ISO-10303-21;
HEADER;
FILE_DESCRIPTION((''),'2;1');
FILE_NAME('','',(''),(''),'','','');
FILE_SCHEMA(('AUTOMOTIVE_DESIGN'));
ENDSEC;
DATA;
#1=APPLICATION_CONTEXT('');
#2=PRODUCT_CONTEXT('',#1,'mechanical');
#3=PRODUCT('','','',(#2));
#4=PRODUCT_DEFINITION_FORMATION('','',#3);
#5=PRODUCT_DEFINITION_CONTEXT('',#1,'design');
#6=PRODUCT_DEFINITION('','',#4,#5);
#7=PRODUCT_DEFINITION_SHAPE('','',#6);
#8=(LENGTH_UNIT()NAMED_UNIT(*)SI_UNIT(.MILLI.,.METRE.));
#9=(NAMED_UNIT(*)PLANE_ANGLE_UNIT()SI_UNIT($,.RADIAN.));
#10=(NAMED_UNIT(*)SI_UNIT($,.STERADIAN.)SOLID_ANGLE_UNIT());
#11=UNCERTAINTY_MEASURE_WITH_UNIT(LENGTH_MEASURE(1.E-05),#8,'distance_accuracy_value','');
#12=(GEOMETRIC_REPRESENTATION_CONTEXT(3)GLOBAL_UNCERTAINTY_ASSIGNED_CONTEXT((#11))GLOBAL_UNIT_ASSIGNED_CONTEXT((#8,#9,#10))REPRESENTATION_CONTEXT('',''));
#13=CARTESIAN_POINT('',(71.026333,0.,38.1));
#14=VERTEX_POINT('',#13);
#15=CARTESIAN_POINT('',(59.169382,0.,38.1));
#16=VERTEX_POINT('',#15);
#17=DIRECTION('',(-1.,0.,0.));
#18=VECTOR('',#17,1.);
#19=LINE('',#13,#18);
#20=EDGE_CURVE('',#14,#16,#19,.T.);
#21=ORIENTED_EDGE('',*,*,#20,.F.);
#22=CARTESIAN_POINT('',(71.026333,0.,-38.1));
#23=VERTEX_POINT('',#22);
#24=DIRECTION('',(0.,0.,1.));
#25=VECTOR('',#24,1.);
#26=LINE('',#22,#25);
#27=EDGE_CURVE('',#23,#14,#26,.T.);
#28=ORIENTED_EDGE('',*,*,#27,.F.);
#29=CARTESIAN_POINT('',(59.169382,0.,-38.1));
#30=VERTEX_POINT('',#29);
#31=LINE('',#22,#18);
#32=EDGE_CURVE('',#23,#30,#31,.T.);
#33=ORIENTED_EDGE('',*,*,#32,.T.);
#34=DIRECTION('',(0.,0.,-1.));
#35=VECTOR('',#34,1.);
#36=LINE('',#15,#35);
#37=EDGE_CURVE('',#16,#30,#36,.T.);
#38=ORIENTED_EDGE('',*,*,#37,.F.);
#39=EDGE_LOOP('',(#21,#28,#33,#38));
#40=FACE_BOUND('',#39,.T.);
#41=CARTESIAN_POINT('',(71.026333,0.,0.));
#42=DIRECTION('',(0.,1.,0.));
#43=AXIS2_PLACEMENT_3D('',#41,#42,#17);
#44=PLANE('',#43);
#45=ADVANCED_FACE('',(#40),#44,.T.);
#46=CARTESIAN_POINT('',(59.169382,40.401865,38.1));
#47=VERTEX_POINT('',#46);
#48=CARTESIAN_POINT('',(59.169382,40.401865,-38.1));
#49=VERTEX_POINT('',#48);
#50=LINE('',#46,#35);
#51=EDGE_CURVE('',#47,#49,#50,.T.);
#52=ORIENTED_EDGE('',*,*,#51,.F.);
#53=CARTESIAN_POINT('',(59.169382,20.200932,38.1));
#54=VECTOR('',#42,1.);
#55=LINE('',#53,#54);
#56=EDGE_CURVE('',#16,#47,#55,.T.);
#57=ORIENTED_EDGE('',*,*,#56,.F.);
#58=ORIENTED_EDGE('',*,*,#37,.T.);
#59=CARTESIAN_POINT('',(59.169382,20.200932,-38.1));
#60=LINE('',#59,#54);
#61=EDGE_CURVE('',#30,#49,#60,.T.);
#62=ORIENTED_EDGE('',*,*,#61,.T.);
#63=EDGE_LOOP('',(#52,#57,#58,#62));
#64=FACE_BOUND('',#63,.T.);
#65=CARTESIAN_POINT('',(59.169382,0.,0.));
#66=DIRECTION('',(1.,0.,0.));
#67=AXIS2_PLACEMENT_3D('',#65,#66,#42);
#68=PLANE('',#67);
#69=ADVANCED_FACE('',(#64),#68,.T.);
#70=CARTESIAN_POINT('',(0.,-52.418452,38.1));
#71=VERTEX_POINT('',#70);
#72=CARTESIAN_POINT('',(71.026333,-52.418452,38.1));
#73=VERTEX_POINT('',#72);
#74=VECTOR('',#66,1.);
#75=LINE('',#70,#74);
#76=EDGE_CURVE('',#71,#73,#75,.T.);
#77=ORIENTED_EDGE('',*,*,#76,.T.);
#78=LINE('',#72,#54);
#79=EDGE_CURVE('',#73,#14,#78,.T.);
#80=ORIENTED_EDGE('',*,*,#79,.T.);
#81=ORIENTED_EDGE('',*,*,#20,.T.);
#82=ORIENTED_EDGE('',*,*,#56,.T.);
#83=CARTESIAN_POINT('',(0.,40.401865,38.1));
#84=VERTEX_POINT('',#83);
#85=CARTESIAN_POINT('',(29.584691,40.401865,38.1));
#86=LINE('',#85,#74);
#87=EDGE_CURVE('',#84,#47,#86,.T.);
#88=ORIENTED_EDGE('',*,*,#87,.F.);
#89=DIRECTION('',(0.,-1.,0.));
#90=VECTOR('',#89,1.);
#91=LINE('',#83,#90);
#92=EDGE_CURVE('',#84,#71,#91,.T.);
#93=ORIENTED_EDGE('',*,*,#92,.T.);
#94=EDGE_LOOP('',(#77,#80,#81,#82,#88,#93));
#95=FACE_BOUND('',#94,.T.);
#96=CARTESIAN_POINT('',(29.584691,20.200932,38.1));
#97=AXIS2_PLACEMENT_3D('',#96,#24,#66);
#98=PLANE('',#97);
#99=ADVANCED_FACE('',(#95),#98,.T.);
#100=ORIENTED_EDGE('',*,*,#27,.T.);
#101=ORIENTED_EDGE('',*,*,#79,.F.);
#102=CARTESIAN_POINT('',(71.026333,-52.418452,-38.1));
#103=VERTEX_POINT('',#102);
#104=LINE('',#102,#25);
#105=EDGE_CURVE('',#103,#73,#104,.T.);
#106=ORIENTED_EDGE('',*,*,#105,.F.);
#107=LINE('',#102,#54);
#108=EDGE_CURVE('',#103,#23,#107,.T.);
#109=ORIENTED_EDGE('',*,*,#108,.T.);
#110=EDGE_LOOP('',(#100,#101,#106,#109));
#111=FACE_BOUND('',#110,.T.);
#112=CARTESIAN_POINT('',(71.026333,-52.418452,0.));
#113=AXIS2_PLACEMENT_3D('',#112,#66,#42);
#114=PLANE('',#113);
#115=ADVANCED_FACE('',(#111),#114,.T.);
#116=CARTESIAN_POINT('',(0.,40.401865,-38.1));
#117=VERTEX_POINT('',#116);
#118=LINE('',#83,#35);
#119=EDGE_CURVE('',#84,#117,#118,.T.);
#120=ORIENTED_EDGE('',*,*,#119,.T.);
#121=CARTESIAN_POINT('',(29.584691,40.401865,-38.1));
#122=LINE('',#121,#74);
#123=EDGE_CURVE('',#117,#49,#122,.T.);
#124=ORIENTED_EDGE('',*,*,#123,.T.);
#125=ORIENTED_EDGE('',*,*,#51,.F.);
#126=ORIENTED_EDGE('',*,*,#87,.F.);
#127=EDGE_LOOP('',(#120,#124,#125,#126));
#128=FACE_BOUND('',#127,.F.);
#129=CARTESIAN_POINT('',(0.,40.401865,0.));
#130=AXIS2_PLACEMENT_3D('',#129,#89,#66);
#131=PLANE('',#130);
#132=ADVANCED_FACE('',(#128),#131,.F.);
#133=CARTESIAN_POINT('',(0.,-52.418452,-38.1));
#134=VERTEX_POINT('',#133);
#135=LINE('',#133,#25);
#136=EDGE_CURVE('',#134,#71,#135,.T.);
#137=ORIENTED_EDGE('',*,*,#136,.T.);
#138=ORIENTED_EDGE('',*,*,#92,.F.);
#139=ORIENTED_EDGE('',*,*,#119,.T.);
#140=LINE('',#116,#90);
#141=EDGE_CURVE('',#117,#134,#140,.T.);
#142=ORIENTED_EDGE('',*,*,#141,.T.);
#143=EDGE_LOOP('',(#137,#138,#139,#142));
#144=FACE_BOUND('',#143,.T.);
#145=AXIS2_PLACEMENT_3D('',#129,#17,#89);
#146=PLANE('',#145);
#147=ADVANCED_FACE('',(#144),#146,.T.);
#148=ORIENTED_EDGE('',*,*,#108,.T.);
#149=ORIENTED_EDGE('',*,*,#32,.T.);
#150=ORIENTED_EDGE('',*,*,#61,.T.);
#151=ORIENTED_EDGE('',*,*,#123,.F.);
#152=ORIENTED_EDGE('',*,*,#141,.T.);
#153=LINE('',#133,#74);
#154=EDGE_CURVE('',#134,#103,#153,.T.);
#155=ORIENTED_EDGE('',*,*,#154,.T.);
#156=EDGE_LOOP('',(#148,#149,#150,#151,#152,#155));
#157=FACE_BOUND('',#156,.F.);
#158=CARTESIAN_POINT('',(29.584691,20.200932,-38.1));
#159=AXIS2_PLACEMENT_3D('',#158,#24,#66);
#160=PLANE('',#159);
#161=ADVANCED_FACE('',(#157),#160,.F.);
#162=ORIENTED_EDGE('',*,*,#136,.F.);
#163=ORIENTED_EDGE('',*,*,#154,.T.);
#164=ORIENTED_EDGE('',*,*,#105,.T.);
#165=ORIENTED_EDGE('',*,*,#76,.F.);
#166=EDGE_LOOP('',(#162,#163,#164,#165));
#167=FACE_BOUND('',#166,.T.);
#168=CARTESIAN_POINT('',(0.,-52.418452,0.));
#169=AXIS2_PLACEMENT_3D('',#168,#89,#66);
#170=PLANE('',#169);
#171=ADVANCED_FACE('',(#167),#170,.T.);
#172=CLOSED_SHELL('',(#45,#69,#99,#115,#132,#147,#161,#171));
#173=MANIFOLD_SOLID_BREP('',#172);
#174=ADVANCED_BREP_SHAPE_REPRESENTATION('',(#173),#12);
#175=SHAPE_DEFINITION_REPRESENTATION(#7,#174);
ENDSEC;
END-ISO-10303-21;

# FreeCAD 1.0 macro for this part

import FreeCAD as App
import Part
import Sketcher
Q = App.Units.Quantity


def add_polygon(sketch, points):
    """Adds a closed chain of lines whose ends are joined by coincident constraints."""
    first, n = sketch.GeometryCount, len(points)
    for a, b in zip(points, points[1:] + points[:1]):
        sketch.addGeometry(Part.LineSegment(App.Vector(*a, 0), App.Vector(*b, 0)), False)
    for i in range(n):
        sketch.addConstraint(Sketcher.Constraint("Coincident", first + i, 2, first + (i + 1) % n, 1))

doc = App.newDocument("Part")
body = doc.addObject("PartDesign::Body", "Body")

sketch1 = body.newObject("Sketcher::SketchObject", "Sketch")
sketch1.AttachmentSupport = (doc.getObject("XY_Plane"), [""])
sketch1.MapMode = "FlatFace"
add_polygon(sketch1, [(0, 40.401865), (0, -52.418452), (71.026333, -52.418452), (71.026333, 0), (59.169382, 0), (59.169382, 40.401865)])
sketch1.addConstraint(Sketcher.Constraint("Vertical", 0))
sketch1.addConstraint(Sketcher.Constraint("Horizontal", 1))
sketch1.addConstraint(Sketcher.Constraint("Vertical", 2))
sketch1.addConstraint(Sketcher.Constraint("Horizontal", 3))
sketch1.addConstraint(Sketcher.Constraint("Vertical", 4))
sketch1.addConstraint(Sketcher.Constraint("Horizontal", 5))
sketch1.addConstraint(Sketcher.Constraint("PointOnObject", 0, 2, -2))
sketch1.addConstraint(Sketcher.Constraint("PointOnObject", 2, 2, -1))
sketch1.addConstraint(Sketcher.Constraint("DistanceX", 3, 2, 3, 1, 11.856951))
sketch1.addConstraint(Sketcher.Constraint("DistanceX", 5, 2, 5, 1, 59.169382))
sketch1.addConstraint(Sketcher.Constraint("DistanceY", 2, 1, 2, 2, 52.418452))
sketch1.addConstraint(Sketcher.Constraint("DistanceY", 0, 2, 0, 1, 92.820317))
pad1 = body.newObject("PartDesign::Pad", "Pad")
pad1.Profile = sketch1
pad1.Length = Q("3 in")
pad1.Midplane = True

doc.recompute()
